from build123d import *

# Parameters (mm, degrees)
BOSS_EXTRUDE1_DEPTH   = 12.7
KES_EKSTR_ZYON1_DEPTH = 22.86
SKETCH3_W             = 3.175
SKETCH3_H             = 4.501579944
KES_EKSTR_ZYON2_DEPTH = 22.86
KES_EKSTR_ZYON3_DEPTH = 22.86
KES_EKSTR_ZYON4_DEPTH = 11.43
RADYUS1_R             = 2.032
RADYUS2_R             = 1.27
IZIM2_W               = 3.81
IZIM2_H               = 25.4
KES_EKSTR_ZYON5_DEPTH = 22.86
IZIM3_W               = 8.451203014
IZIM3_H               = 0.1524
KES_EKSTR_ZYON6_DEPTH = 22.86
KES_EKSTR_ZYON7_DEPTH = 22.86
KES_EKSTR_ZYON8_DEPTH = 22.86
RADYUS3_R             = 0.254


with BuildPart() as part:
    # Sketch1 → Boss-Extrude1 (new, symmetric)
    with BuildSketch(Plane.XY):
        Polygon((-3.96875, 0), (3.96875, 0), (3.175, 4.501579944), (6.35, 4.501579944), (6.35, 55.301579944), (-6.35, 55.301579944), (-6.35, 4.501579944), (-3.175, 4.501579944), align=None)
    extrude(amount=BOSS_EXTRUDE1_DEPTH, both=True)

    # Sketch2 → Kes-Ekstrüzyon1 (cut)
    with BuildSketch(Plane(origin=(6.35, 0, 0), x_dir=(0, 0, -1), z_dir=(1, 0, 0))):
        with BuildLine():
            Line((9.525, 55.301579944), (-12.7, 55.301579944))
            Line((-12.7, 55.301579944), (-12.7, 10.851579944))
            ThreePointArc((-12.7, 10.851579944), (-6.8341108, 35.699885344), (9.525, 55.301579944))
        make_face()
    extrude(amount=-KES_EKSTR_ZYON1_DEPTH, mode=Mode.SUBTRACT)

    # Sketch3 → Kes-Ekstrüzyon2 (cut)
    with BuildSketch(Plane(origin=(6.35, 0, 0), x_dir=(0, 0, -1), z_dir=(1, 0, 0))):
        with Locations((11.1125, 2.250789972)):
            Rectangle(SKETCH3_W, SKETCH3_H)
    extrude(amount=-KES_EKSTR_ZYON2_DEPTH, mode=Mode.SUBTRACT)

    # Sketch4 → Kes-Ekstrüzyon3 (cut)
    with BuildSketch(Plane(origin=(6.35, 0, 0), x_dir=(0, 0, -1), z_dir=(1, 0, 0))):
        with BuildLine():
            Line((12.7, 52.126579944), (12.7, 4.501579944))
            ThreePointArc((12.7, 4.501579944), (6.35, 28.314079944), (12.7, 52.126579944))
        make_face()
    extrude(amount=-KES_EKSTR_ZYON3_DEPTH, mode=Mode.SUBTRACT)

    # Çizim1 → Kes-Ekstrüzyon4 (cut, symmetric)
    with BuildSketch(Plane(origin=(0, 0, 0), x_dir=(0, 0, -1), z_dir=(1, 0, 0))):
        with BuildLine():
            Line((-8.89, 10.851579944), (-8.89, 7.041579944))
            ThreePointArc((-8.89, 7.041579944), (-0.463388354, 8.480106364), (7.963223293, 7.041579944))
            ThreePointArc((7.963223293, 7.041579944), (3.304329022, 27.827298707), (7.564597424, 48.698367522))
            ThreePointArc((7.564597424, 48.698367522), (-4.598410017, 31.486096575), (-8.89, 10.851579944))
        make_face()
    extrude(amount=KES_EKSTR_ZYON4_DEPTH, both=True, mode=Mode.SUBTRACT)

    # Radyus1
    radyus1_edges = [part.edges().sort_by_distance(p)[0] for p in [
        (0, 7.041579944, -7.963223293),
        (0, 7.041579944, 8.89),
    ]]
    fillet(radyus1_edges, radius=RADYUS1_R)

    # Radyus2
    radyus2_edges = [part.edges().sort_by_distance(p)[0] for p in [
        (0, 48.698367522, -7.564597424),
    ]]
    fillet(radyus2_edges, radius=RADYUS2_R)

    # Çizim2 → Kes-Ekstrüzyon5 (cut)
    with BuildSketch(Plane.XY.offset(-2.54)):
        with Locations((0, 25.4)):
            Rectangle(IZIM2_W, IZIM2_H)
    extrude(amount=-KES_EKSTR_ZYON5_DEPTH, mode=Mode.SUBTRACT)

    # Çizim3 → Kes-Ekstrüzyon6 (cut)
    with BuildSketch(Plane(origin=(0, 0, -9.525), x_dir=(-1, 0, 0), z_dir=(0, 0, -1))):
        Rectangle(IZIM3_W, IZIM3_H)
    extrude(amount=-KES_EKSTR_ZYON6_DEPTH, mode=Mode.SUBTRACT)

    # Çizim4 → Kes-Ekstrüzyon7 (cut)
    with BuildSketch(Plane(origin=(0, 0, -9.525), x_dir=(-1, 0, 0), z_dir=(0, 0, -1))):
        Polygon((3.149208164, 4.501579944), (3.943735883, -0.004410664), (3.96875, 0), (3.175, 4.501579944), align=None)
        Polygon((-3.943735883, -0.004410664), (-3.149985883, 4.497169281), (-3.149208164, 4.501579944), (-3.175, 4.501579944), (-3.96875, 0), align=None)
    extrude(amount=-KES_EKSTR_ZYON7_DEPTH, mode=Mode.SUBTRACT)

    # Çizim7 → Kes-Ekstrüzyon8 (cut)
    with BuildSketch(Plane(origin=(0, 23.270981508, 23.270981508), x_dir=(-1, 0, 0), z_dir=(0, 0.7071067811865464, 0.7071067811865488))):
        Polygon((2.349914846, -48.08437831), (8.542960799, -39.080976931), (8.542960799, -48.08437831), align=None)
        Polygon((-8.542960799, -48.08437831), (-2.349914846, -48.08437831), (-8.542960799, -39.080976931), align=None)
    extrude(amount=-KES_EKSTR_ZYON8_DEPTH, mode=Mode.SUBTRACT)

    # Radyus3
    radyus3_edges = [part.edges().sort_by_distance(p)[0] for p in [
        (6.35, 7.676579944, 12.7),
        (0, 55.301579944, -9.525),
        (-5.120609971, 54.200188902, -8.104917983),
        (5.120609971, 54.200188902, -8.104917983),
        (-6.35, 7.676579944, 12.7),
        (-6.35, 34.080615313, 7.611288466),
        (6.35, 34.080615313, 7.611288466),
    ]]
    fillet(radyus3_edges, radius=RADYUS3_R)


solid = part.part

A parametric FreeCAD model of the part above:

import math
import FreeCAD as App
import Part
import Sketcher
from FreeCAD import Vector
Q = App.Units.Quantity


def edges_at(feature, points):
    """Names of the edges that pass closest to the given points."""
    edges = feature.Shape.Edges
    near = lambda p: min(range(len(edges)), key=lambda i: edges[i].distToShape(Part.Vertex(*p))[0])
    return sorted({f"Edge{near(p) + 1}" for p in points})


def add_polygon(sketch, points):
    """Adds a closed chain of lines whose ends are joined by coincident constraints."""
    first, n = sketch.GeometryCount, len(points)
    for a, b in zip(points, points[1:] + points[:1]):
        sketch.addGeometry(Part.LineSegment(App.Vector(*a, 0), App.Vector(*b, 0)), False)
    for i in range(n):
        sketch.addConstraint(Sketcher.Constraint("Coincident", first + i, 2, first + (i + 1) % n, 1))

doc = App.newDocument("Part")
body = doc.addObject("PartDesign::Body", "Body")

# Sketch on XY plane
sketch1 = body.newObject("Sketcher::SketchObject", "Sketch")
sketch1.AttachmentSupport = (doc.getObject("XY_Plane"), [""])
sketch1.MapMode = "FlatFace"
add_polygon(sketch1, [(-4, 0), (4, 0), (3.2, 4.5), (6.3, 4.5), (6.3, 55.3), (-6.3, 55.3), (-6.3, 4.5), (-3.2, 4.5)])  # lines 0-7
sketch1.addConstraint(Sketcher.Constraint("Horizontal", 0))
sketch1.addConstraint(Sketcher.Constraint("Horizontal", 2))
sketch1.addConstraint(Sketcher.Constraint("Vertical", 3))
sketch1.addConstraint(Sketcher.Constraint("Horizontal", 4))
sketch1.addConstraint(Sketcher.Constraint("Vertical", 5))
sketch1.addConstraint(Sketcher.Constraint("Horizontal", 6))
sketch1.addConstraint(Sketcher.Constraint("Symmetric", 0, 2, 7, 2, -1, 1))
sketch1.addConstraint(Sketcher.Constraint("Symmetric", 2, 2, 5, 2, -2))
sketch1.addConstraint(Sketcher.Constraint("Equal", 2, 6))
sketch1.addConstraint(Sketcher.Constraint("DistanceY", 3, 1, 3, 2, Q("2 in")))
sketch1.addConstraint(Sketcher.Constraint("DistanceX", 4, 2, 4, 1, Q("0.5 in")))
sketch1.addConstraint(Sketcher.Constraint("Angle", 1, Q("100 deg")))
sketch1.addConstraint(Sketcher.Constraint("DistanceX", 0, 1, 0, 2, Q("0.3125 in")))
sketch1.addConstraint(Sketcher.Constraint("DistanceX", 2, 1, 2, 2, Q("0.125 in")))
pad1 = body.newObject("PartDesign::Pad", "Pad")
pad1.Profile = sketch1
pad1.Length = Q("1 in")
pad1.Midplane = True

# Sketch on YZ plane
sketch2 = body.newObject("Sketcher::SketchObject", "Sketch001")
sketch2.AttachmentSupport = (doc.getObject("YZ_Plane"), [""])
sketch2.MapMode = "FlatFace"
sketch2.AttachmentOffset = App.Placement(Vector(0, 0, 0.25 * 25.4), App.Rotation())
sketch2.addGeometry(Part.LineSegment(Vector(55, -10, 0), Vector(55, 13, 0)), False)
sketch2.addGeometry(Part.LineSegment(Vector(55, 13, 0), Vector(11, 13, 0)), False)
sketch2.addGeometry(Part.ArcOfCircle(Part.Circle(Vector(11, -43, 0), Vector(0, 0, 1), 56), math.radians(37), math.radians(90)), False)
sketch2.addConstraint(Sketcher.Constraint("Coincident", 0, 2, 1, 1))
sketch2.addConstraint(Sketcher.Constraint("Tangent", 1, 2, 2, 2))
sketch2.addConstraint(Sketcher.Constraint("Coincident", 2, 1, 0, 1))
sketch2.addConstraint(Sketcher.Constraint("Vertical", 0))
sketch2.addConstraint(Sketcher.Constraint("Horizontal", 1))
sketch2.addConstraint(Sketcher.Constraint("Radius", 2, Q("2.1875 in")))
sketch2.addConstraint(Sketcher.Constraint("DistanceX", 1, 2, 1, 1, Q("1.75 in")))
sketch2.addConstraint(Sketcher.Constraint("DistanceY", -1, 1, 0, 2, Q("0.5 in")))
sketch2.addConstraint(Sketcher.Constraint("DistanceX", -1, 1, 2, 3, 10.85158))
pocket1 = body.newObject("PartDesign::Pocket", "Pocket")
pocket1.Profile = sketch2
pocket1.Length = Q("0.9 in")

# Sketch on YZ plane
sketch3 = body.newObject("Sketcher::SketchObject", "Sketch002")
sketch3.AttachmentSupport = (doc.getObject("YZ_Plane"), [""])
sketch3.MapMode = "FlatFace"
sketch3.AttachmentOffset = App.Placement(Vector(0, 0, 0.25 * 25.4), App.Rotation())
add_polygon(sketch3, [(4.5, -9.5), (0, -9.5), (0, -12.7), (4.5, -12.7)])  # lines 0-3
sketch3.addConstraint(Sketcher.Constraint("Horizontal", 0))
sketch3.addConstraint(Sketcher.Constraint("Vertical", 1))
sketch3.addConstraint(Sketcher.Constraint("Horizontal", 2))
sketch3.addConstraint(Sketcher.Constraint("Vertical", 3))
sketch3.addConstraint(Sketcher.Constraint("PointOnObject", 0, 2, -2))
sketch3.addConstraint(Sketcher.Constraint("DistanceY", 1, 2, -1, 1, Q("0.5 in")))
sketch3.addConstraint(Sketcher.Constraint("DistanceY", 1, 2, 1, 1, Q("0.125 in")))
sketch3.addConstraint(Sketcher.Constraint("DistanceX", 0, 2, 0, 1, 4.50158))
pocket2 = body.newObject("PartDesign::Pocket", "Pocket001")
pocket2.Profile = sketch3
pocket2.Length = Q("0.9 in")

# Sketch on YZ plane
sketch4 = body.newObject("Sketcher::SketchObject", "Sketch003")
sketch4.AttachmentSupport = (doc.getObject("YZ_Plane"), [""])
sketch4.MapMode = "FlatFace"
sketch4.AttachmentOffset = App.Placement(Vector(0, 0, 0.25 * 25.4), App.Rotation())
sketch4.addGeometry(Part.LineSegment(Vector(5, -13, 0), Vector(52, -13, 0)), False)
sketch4.addGeometry(Part.ArcOfCircle(Part.Circle(Vector(28, -54, 0), Vector(0, 0, 1), 48), math.radians(60), math.radians(120)), False)
sketch4.addConstraint(Sketcher.Constraint("Coincident", 0, 1, 1, 2))
sketch4.addConstraint(Sketcher.Constraint("Coincident", 1, 1, 0, 2))
sketch4.addConstraint(Sketcher.Constraint("Horizontal", 0))
sketch4.addConstraint(Sketcher.Constraint("DistanceY", 0, 1, -1, 1, Q("0.5 in")))
sketch4.addConstraint(Sketcher.Constraint("DistanceX", 0, 1, 0, 2, Q("1.875 in")))
sketch4.addConstraint(Sketcher.Constraint("Radius", 1, 47.823437))
sketch4.addConstraint(Sketcher.Constraint("DistanceX", -1, 1, 1, 3, 28.31408))
pocket3 = body.newObject("PartDesign::Pocket", "Pocket002")
pocket3.Profile = sketch4
pocket3.Length = Q("0.9 in")

# Sketch on YZ plane
sketch5 = body.newObject("Sketcher::SketchObject", "Sketch004")
sketch5.AttachmentSupport = (doc.getObject("YZ_Plane"), [""])
sketch5.MapMode = "FlatFace"
sketch5.addGeometry(Part.LineSegment(Vector(10.9, 8.9, 0), Vector(7, 8.9, 0)), False)
sketch5.addGeometry(Part.ArcOfCircle(Part.Circle(Vector(-16.9, 0.5, 0), Vector(0, 0, 1), 25.4), math.radians(-19), math.radians(19)), False)
sketch5.addGeometry(Part.ArcOfCircle(Part.Circle(Vector(28.3, -54.2, 0), Vector(0, 0, 1), 50.9), math.radians(66), math.radians(115)), False)
sketch5.addGeometry(Part.ArcOfCircle(Part.Circle(Vector(10.9, -42.9, 0), Vector(0, 0, 1), 51.8), math.radians(43), math.radians(90)), False)
sketch5.addConstraint(Sketcher.Constraint("Coincident", 0, 2, 1, 2))
sketch5.addConstraint(Sketcher.Constraint("Coincident", 1, 1, 2, 2))
sketch5.addConstraint(Sketcher.Constraint("Coincident", 2, 1, 3, 1))
sketch5.addConstraint(Sketcher.Constraint("Tangent", 3, 2, 0, 1))
sketch5.addConstraint(Sketcher.Constraint("Horizontal", 0))
sketch5.addConstraint(Sketcher.Constraint("Vertical", 0, 2, 1, 1))
sketch5.addConstraint(Sketcher.Constraint("Radius", 1, Q("1 in")))
sketch5.addConstraint(Sketcher.Constraint("DistanceX", 0, 2, 0, 1, Q("0.15 in")))
sketch5.addConstraint(Sketcher.Constraint("Radius", 3, Q("2.0375 in")))
sketch5.addConstraint(Sketcher.Constraint("DistanceY", -1, 1, 0, 2, Q("0.35 in")))
sketch5.addConstraint(Sketcher.Constraint("DistanceX", 3, 3, 2, 3, Q("0.6875 in")))
sketch5.addConstraint(Sketcher.Constraint("Radius", 2, 50.871437))
sketch5.addConstraint(Sketcher.Constraint("DistanceY", -1, 1, 1, 3, 0.463388))
sketch5.addConstraint(Sketcher.Constraint("DistanceX", -1, 1, 2, 3, 28.31408))
pocket4 = body.newObject("PartDesign::Pocket", "Pocket003")
pocket4.Profile = sketch5
pocket4.Length = Q("0.9 in")
pocket4.Midplane = True
doc.recompute()

fillet = body.newObject("PartDesign::Fillet", "Fillet")
fillet.Base = (pocket4, edges_at(pocket4, [(0, 7.042, -7.963), (0, 7.042, 8.89)]))
fillet.Radius = Q("0.08 in")
doc.recompute()

fillet2 = body.newObject("PartDesign::Fillet", "Fillet001")
fillet2.Base = (fillet, edges_at(fillet, [(0, 48.698, -7.565)]))
fillet2.Radius = Q("0.05 in")

# Sketch on XY plane
sketch6 = body.newObject("Sketcher::SketchObject", "Sketch005")
sketch6.AttachmentSupport = (doc.getObject("XY_Plane"), [""])
sketch6.MapMode = "FlatFace"
sketch6.AttachmentOffset = App.Placement(Vector(0, 0, -0.1 * 25.4), App.Rotation())
add_polygon(sketch6, [(-1.9, 38.1), (-1.9, 12.7), (1.9, 12.7), (1.9, 38.1)])  # lines 0-3
sketch6.addConstraint(Sketcher.Constraint("Vertical", 0))
sketch6.addConstraint(Sketcher.Constraint("Horizontal", 1))
sketch6.addConstraint(Sketcher.Constraint("Vertical", 2))
sketch6.addConstraint(Sketcher.Constraint("Horizontal", 3))
sketch6.addConstraint(Sketcher.Constraint("DistanceY", 0, 2, 0, 1, Q("1 in")))
sketch6.addConstraint(Sketcher.Constraint("DistanceX", 1, 1, 1, 2, Q("0.15 in")))
sketch6.addConstraint(Sketcher.Constraint("DistanceY", -1, 1, 0, 2, Q("0.5 in")))
sketch6.addConstraint(Sketcher.Constraint("DistanceX", 0, 2, -1, 1, Q("0.075 in")))
pocket5 = body.newObject("PartDesign::Pocket", "Pocket004")
pocket5.Profile = sketch6
pocket5.Length = Q("0.9 in")

# Sketch on XY plane
sketch7 = body.newObject("Sketcher::SketchObject", "Sketch006")
sketch7.AttachmentSupport = (doc.getObject("XY_Plane"), [""])
sketch7.MapMode = "FlatFace"
sketch7.AttachmentOffset = App.Placement(Vector(0, 0, -0.375 * 25.4), App.Rotation())
add_polygon(sketch7, [(4.23, 0.08), (4.23, -0.08), (-4.23, -0.08), (-4.23, 0.08)])  # lines 0-3
sketch7.addConstraint(Sketcher.Constraint("Vertical", 0))
sketch7.addConstraint(Sketcher.Constraint("Horizontal", 1))
sketch7.addConstraint(Sketcher.Constraint("Vertical", 2))
sketch7.addConstraint(Sketcher.Constraint("Horizontal", 3))
sketch7.addConstraint(Sketcher.Constraint("Symmetric", 0, 2, 2, 2, -1, 1))
sketch7.addConstraint(Sketcher.Constraint("DistanceY", 0, 2, 0, 1, Q("0.006 in")))
sketch7.addConstraint(Sketcher.Constraint("DistanceX", -1, 1, 0, 2, 4.225602))
pocket6 = body.newObject("PartDesign::Pocket", "Pocket005")
pocket6.Profile = sketch7
pocket6.Length = Q("0.9 in")
pocket6.Reversed = True

# Sketch on XY plane
sketch8 = body.newObject("Sketcher::SketchObject", "Sketch007")
sketch8.AttachmentSupport = (doc.getObject("XY_Plane"), [""])
sketch8.MapMode = "FlatFace"
sketch8.AttachmentOffset = App.Placement(Vector(0, 0, -0.375 * 25.4), App.Rotation())
add_polygon(sketch8, [(-3.1492, 4.5016), (-3.9437, -0.0044), (-3.9688, 0), (-3.175, 4.5016)])  # lines 0-3
add_polygon(sketch8, [(3.9437, -0.0044), (3.15, 4.4972), (3.1492, 4.5016), (3.175, 4.5016), (3.9688, 0)])  # lines 4-8
sketch8.addConstraint(Sketcher.Constraint("Horizontal", 3))
sketch8.addConstraint(Sketcher.Constraint("Horizontal", 6))
sketch8.addConstraint(Sketcher.Constraint("Symmetric", 1, 2, 7, 2, -1, 1))
sketch8.addConstraint(Sketcher.Constraint("Symmetric", 3, 2, 5, 2, -2))
sketch8.addConstraint(Sketcher.Constraint("Symmetric", 0, 2, 8, 2, -2))
sketch8.addConstraint(Sketcher.Constraint("PointOnObject", 1, 2, -1))
sketch8.addConstraint(Sketcher.Constraint("Perpendicular", 0, 1))
sketch8.addConstraint(Sketcher.Constraint("Perpendicular", 1, 2))
sketch8.addConstraint(Sketcher.Constraint("Parallel", 4, 5))
sketch8.addConstraint(Sketcher.Constraint("Parallel", 4, 7))
sketch8.addConstraint(Sketcher.Constraint("Equal", 2, 4))
sketch8.addConstraint(Sketcher.Constraint("Angle", 0, Q("-100 deg")))
sketch8.addConstraint(Sketcher.Constraint("DistanceX", 2, 2, 6, 2, Q("0.25 in")))
sketch8.addConstraint(Sketcher.Constraint("Distance", 1, Q("0.001 in")))
sketch8.addConstraint(Sketcher.Constraint("DistanceX", 1, 2, -1, 1, Q("0.15625 in")))
pocket7 = body.newObject("PartDesign::Pocket", "Pocket006")
pocket7.Profile = sketch8
pocket7.Length = Q("0.9 in")
pocket7.Reversed = True

# Sketch on an angled plane
sketch9 = body.newObject("Sketcher::SketchObject", "Sketch008")
sketch9.Placement = App.Placement(Vector(0, 23.270982, 23.270982), App.Rotation(Vector(-1, 0, 0), Vector(0, -0.707106781, 0.707106781), Vector(0, 0.707106781, 0.707106781), "ZXY"))
add_polygon(sketch9, [(9, -39), (2, -48), (9, -48)])  # lines 0-2
add_polygon(sketch9, [(-9, -48), (-2, -48), (-9, -39)])  # lines 3-5
sketch9.addConstraint(Sketcher.Constraint("Horizontal", 1))
sketch9.addConstraint(Sketcher.Constraint("Vertical", 2))
sketch9.addConstraint(Sketcher.Constraint("Horizontal", 3))
sketch9.addConstraint(Sketcher.Constraint("Vertical", 5))
sketch9.addConstraint(Sketcher.Constraint("Symmetric", 0, 2, 3, 2, -2))
sketch9.addConstraint(Sketcher.Constraint("Symmetric", 2, 2, 4, 2, -2))
sketch9.addConstraint(Sketcher.Constraint("DistanceY", 2, 1, 2, 2, 9.003401))
sketch9.addConstraint(Sketcher.Constraint("Distance", 0, 10.92772))
sketch9.addConstraint(Sketcher.Constraint("DistanceY", 0, 2, -1, 1, 48.084378))
sketch9.addConstraint(Sketcher.Constraint("DistanceX", -1, 1, 1, 2, 8.542961))
pocket8 = body.newObject("PartDesign::Pocket", "Pocket007")
pocket8.Profile = sketch9
pocket8.Length = Q("0.9 in")
doc.recompute()

fillet3 = body.newObject("PartDesign::Fillet", "Fillet002")
fillet3.Base = (pocket8, edges_at(pocket8, [
    (6.35, 7.677, 12.7),
    (0, 55.302, -9.525),
    (-5.121, 54.2, -8.105),
    (5.121, 54.2, -8.105),
    (-6.35, 7.677, 12.7),
    (-6.35, 34.081, 7.611),
    (6.35, 34.081, 7.611),
]))
fillet3.Radius = Q("0.01 in")

doc.recompute()
